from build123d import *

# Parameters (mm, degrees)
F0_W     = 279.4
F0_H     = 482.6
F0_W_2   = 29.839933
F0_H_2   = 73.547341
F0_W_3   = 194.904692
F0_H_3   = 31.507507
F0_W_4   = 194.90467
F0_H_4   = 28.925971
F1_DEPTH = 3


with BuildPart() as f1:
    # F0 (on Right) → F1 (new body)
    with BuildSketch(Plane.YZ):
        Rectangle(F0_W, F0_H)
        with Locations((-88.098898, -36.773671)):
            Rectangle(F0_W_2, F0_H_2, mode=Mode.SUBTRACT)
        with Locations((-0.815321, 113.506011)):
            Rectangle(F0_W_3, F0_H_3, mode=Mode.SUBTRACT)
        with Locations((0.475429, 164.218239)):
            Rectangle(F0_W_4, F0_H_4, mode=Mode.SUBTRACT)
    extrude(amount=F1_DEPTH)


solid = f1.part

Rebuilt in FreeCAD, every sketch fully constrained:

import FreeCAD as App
import Part
import Sketcher
from FreeCAD import Vector
Q = App.Units.Quantity

doc = App.newDocument("Part")
body = doc.addObject("PartDesign::Body", "Body")

sketch1 = body.newObject("Sketcher::SketchObject", "Sketch")
sketch1.AttachmentSupport = (doc.getObject("YZ_Plane"), [""])
sketch1.MapMode = "FlatFace"
sketch1.addGeometry([
    Part.LineSegment(Vector(-139.7, 241.3, 0), Vector(-139.7, -241.3, 0)),
    Part.LineSegment(Vector(-139.7, -241.3, 0), Vector(139.7, -241.3, 0)),
    Part.LineSegment(Vector(139.7, -241.3, 0), Vector(139.7, 241.3, 0)),
    Part.LineSegment(Vector(139.7, 241.3, 0), Vector(-139.7, 241.3, 0)),
    Part.LineSegment(Vector(-73.178932, -73.547342, 0), Vector(-103.018865, -73.547342, 0)),
    Part.LineSegment(Vector(-103.018865, -73.547342, 0), Vector(-103.018865, 0, 0)),
    Part.LineSegment(Vector(-103.018865, 0, 0), Vector(-73.178932, 0, 0)),
    Part.LineSegment(Vector(-73.178932, 0, 0), Vector(-73.178932, -73.547342, 0)),
    Part.LineSegment(Vector(96.637025, 97.752257, 0), Vector(-98.267667, 97.752257, 0)),
    Part.LineSegment(Vector(-98.267667, 97.752257, 0), Vector(-98.267667, 129.259764, 0)),
    Part.LineSegment(Vector(-98.267667, 129.259764, 0), Vector(96.637025, 129.259764, 0)),
    Part.LineSegment(Vector(96.637025, 129.259764, 0), Vector(96.637025, 97.752257, 0)),
    Part.LineSegment(Vector(97.927764, 149.755254, 0), Vector(-96.976906, 149.755254, 0)),
    Part.LineSegment(Vector(-96.976906, 149.755254, 0), Vector(-96.976906, 178.681225, 0)),
    Part.LineSegment(Vector(-96.976906, 178.681225, 0), Vector(97.927764, 178.681225, 0)),
    Part.LineSegment(Vector(97.927764, 178.681225, 0), Vector(97.927764, 149.755254, 0)),
], False)
sketch1.addConstraint([
    Sketcher.Constraint("Coincident", 0, 2, 1, 1),
    Sketcher.Constraint("Coincident", 1, 2, 2, 1),
    Sketcher.Constraint("Coincident", 2, 2, 3, 1),
    Sketcher.Constraint("Coincident", 3, 2, 0, 1),
    Sketcher.Constraint("Coincident", 4, 2, 5, 1),
    Sketcher.Constraint("Coincident", 5, 2, 6, 1),
    Sketcher.Constraint("Coincident", 6, 2, 7, 1),
    Sketcher.Constraint("Coincident", 7, 2, 4, 1),
    Sketcher.Constraint("Coincident", 8, 2, 9, 1),
    Sketcher.Constraint("Coincident", 9, 2, 10, 1),
    Sketcher.Constraint("Coincident", 10, 2, 11, 1),
    Sketcher.Constraint("Coincident", 11, 2, 8, 1),
    Sketcher.Constraint("Coincident", 12, 2, 13, 1),
    Sketcher.Constraint("Coincident", 13, 2, 14, 1),
    Sketcher.Constraint("Coincident", 14, 2, 15, 1),
    Sketcher.Constraint("Coincident", 15, 2, 12, 1),
    Sketcher.Constraint("Vertical", 0),
    Sketcher.Constraint("Horizontal", 1),
    Sketcher.Constraint("Vertical", 2),
    Sketcher.Constraint("Horizontal", 3),
    Sketcher.Constraint("Horizontal", 4),
    Sketcher.Constraint("Vertical", 5),
    Sketcher.Constraint("Horizontal", 6),
    Sketcher.Constraint("Vertical", 7),
    Sketcher.Constraint("Horizontal", 8),
    Sketcher.Constraint("Vertical", 9),
    Sketcher.Constraint("Horizontal", 10),
    Sketcher.Constraint("Vertical", 11),
    Sketcher.Constraint("Horizontal", 12),
    Sketcher.Constraint("Vertical", 13),
    Sketcher.Constraint("Horizontal", 14),
    Sketcher.Constraint("Vertical", 15),
    Sketcher.Constraint("Symmetric", 0, 2, 2, 2, -1, 1),
    Sketcher.Constraint("PointOnObject", 5, 2, -1),
    Sketcher.Constraint("DistanceX", 1, 1, 1, 2, Q("11 in")),
    Sketcher.Constraint("DistanceY", 0, 2, 0, 1, Q("19 in")),
    Sketcher.Constraint("DistanceX", 12, 2, 12, 1, Q("194.90467 mm")),
    Sketcher.Constraint("DistanceY", 5, 1, 5, 2, Q("73.547341 mm")),
    Sketcher.Constraint("DistanceY", 13, 1, 13, 2, Q("28.925971 mm")),
    Sketcher.Constraint("DistanceY", 4, 2, 8, 2, Q("171.299599 mm")),
    Sketcher.Constraint("DistanceX", 4, 2, 4, 1, Q("29.839933 mm")),
    Sketcher.Constraint("DistanceX", 8, 2, 8, 1, Q("194.904692 mm")),
    Sketcher.Constraint("DistanceY", 9, 1, 9, 2, Q("31.507507 mm")),
    Sketcher.Constraint("DistanceX", 6, 2, -1, 1, Q("73.178932 mm")),
    Sketcher.Constraint("DistanceX", 5, 2, 10, 2, Q("199.65589 mm")),
    Sketcher.Constraint("DistanceX", 9, 2, 12, 2, Q("1.290761 mm")),
    Sketcher.Constraint("DistanceY", 9, 2, 12, 2, Q("20.495489 mm")),
])
pad1 = body.newObject("PartDesign::Pad", "Pad")
pad1.Profile = sketch1
pad1.Length = 3

doc.recompute()
